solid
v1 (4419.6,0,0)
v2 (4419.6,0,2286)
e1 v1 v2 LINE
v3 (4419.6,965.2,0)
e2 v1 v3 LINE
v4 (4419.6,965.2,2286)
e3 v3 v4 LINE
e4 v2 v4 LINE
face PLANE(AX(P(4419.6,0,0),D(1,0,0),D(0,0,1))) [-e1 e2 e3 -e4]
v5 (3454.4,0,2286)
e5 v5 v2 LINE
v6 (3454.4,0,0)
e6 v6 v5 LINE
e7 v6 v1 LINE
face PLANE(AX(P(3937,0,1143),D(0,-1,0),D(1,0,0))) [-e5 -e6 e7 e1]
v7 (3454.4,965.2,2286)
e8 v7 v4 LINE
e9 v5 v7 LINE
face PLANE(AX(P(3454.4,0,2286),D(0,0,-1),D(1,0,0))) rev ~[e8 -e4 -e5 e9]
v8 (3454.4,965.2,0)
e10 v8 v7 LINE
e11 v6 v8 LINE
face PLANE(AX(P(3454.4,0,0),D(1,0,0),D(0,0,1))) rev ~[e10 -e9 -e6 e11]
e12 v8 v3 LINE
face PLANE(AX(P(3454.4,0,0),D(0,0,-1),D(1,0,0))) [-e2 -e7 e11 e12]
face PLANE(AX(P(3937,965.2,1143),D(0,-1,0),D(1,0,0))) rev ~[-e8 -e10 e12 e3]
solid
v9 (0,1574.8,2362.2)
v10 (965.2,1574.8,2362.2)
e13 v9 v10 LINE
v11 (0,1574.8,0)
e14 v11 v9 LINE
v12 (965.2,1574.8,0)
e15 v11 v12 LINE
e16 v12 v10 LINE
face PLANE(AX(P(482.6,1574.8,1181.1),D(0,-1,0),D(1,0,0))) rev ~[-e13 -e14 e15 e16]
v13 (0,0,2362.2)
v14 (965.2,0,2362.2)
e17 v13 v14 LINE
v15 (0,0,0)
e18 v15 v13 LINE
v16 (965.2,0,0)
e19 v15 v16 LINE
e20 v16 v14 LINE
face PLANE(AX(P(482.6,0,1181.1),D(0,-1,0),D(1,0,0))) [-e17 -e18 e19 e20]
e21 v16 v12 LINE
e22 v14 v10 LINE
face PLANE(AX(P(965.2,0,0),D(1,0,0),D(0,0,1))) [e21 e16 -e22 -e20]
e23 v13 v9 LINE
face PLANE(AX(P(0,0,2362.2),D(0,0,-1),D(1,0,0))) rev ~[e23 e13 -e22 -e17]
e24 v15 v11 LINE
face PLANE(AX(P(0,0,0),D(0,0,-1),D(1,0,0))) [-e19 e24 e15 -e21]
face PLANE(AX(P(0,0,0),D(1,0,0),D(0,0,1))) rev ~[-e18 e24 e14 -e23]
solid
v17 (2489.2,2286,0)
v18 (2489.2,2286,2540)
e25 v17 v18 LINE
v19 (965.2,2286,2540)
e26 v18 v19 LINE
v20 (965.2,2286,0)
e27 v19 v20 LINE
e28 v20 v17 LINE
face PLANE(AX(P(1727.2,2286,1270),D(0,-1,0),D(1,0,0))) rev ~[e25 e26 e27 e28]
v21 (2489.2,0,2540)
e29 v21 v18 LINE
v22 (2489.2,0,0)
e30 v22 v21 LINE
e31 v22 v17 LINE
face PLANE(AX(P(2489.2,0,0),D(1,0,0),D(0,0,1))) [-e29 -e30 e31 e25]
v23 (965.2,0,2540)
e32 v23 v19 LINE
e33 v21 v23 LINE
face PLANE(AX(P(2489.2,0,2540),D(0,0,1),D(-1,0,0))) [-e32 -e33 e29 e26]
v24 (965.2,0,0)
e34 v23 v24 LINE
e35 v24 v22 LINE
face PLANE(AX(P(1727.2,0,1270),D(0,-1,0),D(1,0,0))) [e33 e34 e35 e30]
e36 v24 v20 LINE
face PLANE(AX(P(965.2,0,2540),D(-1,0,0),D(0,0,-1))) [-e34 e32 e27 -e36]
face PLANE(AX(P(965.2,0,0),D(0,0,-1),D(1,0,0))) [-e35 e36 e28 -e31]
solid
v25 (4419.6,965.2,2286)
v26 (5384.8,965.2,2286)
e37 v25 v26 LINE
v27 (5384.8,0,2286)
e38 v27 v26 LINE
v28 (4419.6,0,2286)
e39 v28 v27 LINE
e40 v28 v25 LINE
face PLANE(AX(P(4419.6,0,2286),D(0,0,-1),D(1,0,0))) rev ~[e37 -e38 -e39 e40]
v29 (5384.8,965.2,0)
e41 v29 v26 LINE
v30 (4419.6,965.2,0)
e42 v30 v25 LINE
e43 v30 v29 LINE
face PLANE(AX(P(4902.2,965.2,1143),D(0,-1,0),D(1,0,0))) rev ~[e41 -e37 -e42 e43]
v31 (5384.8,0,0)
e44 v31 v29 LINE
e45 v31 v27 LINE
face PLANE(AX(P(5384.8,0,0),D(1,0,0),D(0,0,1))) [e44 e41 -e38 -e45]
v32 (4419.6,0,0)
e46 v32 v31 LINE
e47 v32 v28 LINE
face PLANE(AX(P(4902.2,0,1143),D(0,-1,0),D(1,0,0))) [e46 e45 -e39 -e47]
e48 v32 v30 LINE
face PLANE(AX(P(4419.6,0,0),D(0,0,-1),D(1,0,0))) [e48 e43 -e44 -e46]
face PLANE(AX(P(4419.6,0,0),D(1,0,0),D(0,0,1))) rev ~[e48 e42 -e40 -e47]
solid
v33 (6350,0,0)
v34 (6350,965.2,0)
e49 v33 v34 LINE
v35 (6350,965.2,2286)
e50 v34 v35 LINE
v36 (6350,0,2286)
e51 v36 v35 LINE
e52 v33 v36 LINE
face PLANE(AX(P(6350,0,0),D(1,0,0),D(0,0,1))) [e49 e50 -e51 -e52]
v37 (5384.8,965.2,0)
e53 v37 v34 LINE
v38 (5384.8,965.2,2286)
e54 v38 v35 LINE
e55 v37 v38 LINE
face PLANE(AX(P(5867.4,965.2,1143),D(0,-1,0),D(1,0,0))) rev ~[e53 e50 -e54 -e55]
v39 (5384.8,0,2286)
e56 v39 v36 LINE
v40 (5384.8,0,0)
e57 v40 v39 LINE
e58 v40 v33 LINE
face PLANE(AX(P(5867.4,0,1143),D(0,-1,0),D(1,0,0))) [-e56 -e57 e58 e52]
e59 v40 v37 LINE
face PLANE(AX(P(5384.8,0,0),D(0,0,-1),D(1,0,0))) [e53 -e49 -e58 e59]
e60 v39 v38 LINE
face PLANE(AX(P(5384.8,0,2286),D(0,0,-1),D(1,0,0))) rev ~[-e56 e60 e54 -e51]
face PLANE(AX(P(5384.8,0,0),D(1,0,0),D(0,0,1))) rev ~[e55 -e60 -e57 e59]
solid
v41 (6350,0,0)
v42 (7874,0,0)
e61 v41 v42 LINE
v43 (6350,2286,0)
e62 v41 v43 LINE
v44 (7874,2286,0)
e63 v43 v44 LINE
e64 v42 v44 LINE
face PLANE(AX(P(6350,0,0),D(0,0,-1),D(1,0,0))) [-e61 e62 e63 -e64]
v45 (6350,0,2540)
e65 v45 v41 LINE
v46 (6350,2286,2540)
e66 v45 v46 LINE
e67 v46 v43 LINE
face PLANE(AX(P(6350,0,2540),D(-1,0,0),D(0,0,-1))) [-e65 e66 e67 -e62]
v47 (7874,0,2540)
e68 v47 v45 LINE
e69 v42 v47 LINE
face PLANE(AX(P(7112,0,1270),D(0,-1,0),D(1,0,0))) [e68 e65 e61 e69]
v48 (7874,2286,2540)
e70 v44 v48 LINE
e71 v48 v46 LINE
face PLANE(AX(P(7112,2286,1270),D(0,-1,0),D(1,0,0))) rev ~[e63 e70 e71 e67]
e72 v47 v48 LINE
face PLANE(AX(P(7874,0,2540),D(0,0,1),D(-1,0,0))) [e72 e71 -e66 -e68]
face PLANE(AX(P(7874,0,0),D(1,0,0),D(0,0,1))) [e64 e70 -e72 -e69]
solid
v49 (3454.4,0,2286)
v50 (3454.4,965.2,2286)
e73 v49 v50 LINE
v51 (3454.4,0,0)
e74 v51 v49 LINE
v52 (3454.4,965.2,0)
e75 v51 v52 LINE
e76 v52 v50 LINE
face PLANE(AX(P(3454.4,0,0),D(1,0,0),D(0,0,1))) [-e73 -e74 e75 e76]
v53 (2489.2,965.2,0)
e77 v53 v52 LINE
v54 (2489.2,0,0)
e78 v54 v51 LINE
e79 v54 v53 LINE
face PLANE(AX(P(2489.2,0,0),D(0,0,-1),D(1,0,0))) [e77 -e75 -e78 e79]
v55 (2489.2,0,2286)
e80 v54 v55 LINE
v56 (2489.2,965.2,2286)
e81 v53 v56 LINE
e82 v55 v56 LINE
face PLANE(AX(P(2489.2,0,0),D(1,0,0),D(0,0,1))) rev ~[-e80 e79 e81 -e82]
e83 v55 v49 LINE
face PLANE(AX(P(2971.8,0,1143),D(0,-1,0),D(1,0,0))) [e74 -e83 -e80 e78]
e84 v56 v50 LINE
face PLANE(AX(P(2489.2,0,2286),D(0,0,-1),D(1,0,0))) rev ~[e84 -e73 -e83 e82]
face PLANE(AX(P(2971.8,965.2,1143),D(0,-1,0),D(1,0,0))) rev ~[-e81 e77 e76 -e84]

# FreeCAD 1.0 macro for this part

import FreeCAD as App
import Part
import Sketcher
Q = App.Units.Quantity


def add_polygon(sketch, points):
    """Adds a closed chain of lines whose ends are joined by coincident constraints."""
    first, n = sketch.GeometryCount, len(points)
    for a, b in zip(points, points[1:] + points[:1]):
        sketch.addGeometry(Part.LineSegment(App.Vector(*a, 0), App.Vector(*b, 0)), False)
    for i in range(n):
        sketch.addConstraint(Sketcher.Constraint("Coincident", first + i, 2, first + (i + 1) % n, 1))

doc = App.newDocument("Part")
params = doc.addObject("Spreadsheet::Sheet", "Params")
for row, (alias, value) in enumerate([
    ("sketch1_width", "38 in"),
    ("sketch1_height", "93 in"),
    ("pad1_length", "62 in"),
    ("sketch2_width", "60 in"),
    ("sketch2_height", "100 in"),
    ("pad2_length", "90 in"),
    ("sketch3_width", "38 in"),
    ("sketch3_height", "90 in"),
    ("pad3_length", "38 in"),
    ("sketch4_width", "38 in"),
    ("sketch4_height", "90 in"),
    ("pad4_length", "38 in"),
    ("sketch5_width", "38 in"),
    ("sketch5_height", "90 in"),
    ("pad5_length", "38 in"),
    ("sketch6_width", "38 in"),
    ("sketch6_height", "90 in"),
    ("pad6_length", "38 in"),
    ("sketch7_width", "60 in"),
    ("sketch7_height", "100 in"),
    ("pad7_length", "90 in"),
], start=1):
    params.set(f"A{row}", alias)
    params.set(f"B{row}", "=" + value)
    params.setAlias(f"B{row}", alias)

body = doc.addObject("PartDesign::Body", "Body")

# Sketch on XZ plane
sketch1 = doc.addObject("Sketcher::SketchObject", "Sketch")
body.addObject(sketch1)
sketch1.AttachmentSupport = (doc.XZ_Plane, [""])
sketch1.MapMode = "FlatFace"
add_polygon(sketch1, [(0, 2362), (0, 0), (965, 0), (965, 2362)])  # lines 0-3
sketch1.addConstraint([
    Sketcher.Constraint("Vertical", 0),
    Sketcher.Constraint("Horizontal", 1),
    Sketcher.Constraint("Vertical", 2),
    Sketcher.Constraint("Horizontal", 3),
    Sketcher.Constraint("Coincident", 0, 2, -1, 1),
    Sketcher.Constraint("DistanceX", 1, 1, 1, 2, Q("38 in")),
    Sketcher.Constraint("DistanceY", 0, 2, 0, 1, Q("93 in")),
])
sketch1.setExpression("Constraints[9]", "Params.sketch1_width")
sketch1.setExpression("Constraints[10]", "Params.sketch1_height")
pad1 = doc.addObject("PartDesign::Pad", "Pad")
body.addObject(pad1)
pad1.Profile = sketch1
pad1.setExpression("Length", "Params.pad1_length")
pad1.Reversed = True
body2 = doc.addObject("PartDesign::Body", "Body001")

# Sketch on XZ plane
sketch2 = doc.addObject("Sketcher::SketchObject", "Sketch001")
body2.addObject(sketch2)
sketch2.AttachmentSupport = (doc.getObject("XZ_Plane001"), [""])
sketch2.MapMode = "FlatFace"
add_polygon(sketch2, [(965, 0), (2489, 0), (2489, 2540), (965, 2540)])  # lines 0-3
sketch2.addConstraint([
    Sketcher.Constraint("Horizontal", 0),
    Sketcher.Constraint("Vertical", 1),
    Sketcher.Constraint("Horizontal", 2),
    Sketcher.Constraint("Vertical", 3),
    Sketcher.Constraint("PointOnObject", 0, 2, -1),
    Sketcher.Constraint("DistanceX", 0, 1, 0, 2, Q("60 in")),
    Sketcher.Constraint("DistanceY", 1, 1, 1, 2, Q("100 in")),
    Sketcher.Constraint("DistanceX", -1, 1, 0, 2, Q("98 in")),
])
sketch2.setExpression("Constraints[9]", "Params.sketch2_width")
sketch2.setExpression("Constraints[10]", "Params.sketch2_height")
pad2 = doc.addObject("PartDesign::Pad", "Pad001")
body2.addObject(pad2)
pad2.Profile = sketch2
pad2.setExpression("Length", "Params.pad2_length")
pad2.Reversed = True
body3 = doc.addObject("PartDesign::Body", "Body002")

# Sketch on XZ plane
sketch3 = doc.addObject("Sketcher::SketchObject", "Sketch002")
body3.addObject(sketch3)
sketch3.AttachmentSupport = (doc.getObject("XZ_Plane002"), [""])
sketch3.MapMode = "FlatFace"
add_polygon(sketch3, [(2489, 2286), (2489, 0), (3454, 0), (3454, 2286)])  # lines 0-3
sketch3.addConstraint([
    Sketcher.Constraint("Vertical", 0),
    Sketcher.Constraint("Horizontal", 1),
    Sketcher.Constraint("Vertical", 2),
    Sketcher.Constraint("Horizontal", 3),
    Sketcher.Constraint("PointOnObject", 0, 2, -1),
    Sketcher.Constraint("DistanceX", 1, 1, 1, 2, Q("38 in")),
    Sketcher.Constraint("DistanceY", 0, 2, 0, 1, Q("90 in")),
    Sketcher.Constraint("DistanceX", -1, 1, 0, 2, Q("98 in")),
])
sketch3.setExpression("Constraints[9]", "Params.sketch3_width")
sketch3.setExpression("Constraints[10]", "Params.sketch3_height")
pad3 = doc.addObject("PartDesign::Pad", "Pad002")
body3.addObject(pad3)
pad3.Profile = sketch3
pad3.setExpression("Length", "Params.pad3_length")
pad3.Reversed = True
body4 = doc.addObject("PartDesign::Body", "Body003")

# Sketch on XZ plane
sketch4 = doc.addObject("Sketcher::SketchObject", "Sketch003")
body4.addObject(sketch4)
sketch4.AttachmentSupport = (doc.getObject("XZ_Plane003"), [""])
sketch4.MapMode = "FlatFace"
add_polygon(sketch4, [(3454, 2286), (3454, 0), (4420, 0), (4420, 2286)])  # lines 0-3
sketch4.addConstraint([
    Sketcher.Constraint("Vertical", 0),
    Sketcher.Constraint("Horizontal", 1),
    Sketcher.Constraint("Vertical", 2),
    Sketcher.Constraint("Horizontal", 3),
    Sketcher.Constraint("PointOnObject", 0, 2, -1),
    Sketcher.Constraint("DistanceX", 1, 1, 1, 2, Q("38 in")),
    Sketcher.Constraint("DistanceY", 0, 2, 0, 1, Q("90 in")),
    Sketcher.Constraint("DistanceX", -1, 1, 0, 2, Q("136 in")),
])
sketch4.setExpression("Constraints[9]", "Params.sketch4_width")
sketch4.setExpression("Constraints[10]", "Params.sketch4_height")
pad4 = doc.addObject("PartDesign::Pad", "Pad003")
body4.addObject(pad4)
pad4.Profile = sketch4
pad4.setExpression("Length", "Params.pad4_length")
pad4.Reversed = True
body5 = doc.addObject("PartDesign::Body", "Body004")

# Sketch on XZ plane
sketch5 = doc.addObject("Sketcher::SketchObject", "Sketch004")
body5.addObject(sketch5)
sketch5.AttachmentSupport = (doc.getObject("XZ_Plane004"), [""])
sketch5.MapMode = "FlatFace"
add_polygon(sketch5, [(4420, 2286), (4420, 0), (5385, 0), (5385, 2286)])  # lines 0-3
sketch5.addConstraint([
    Sketcher.Constraint("Vertical", 0),
    Sketcher.Constraint("Horizontal", 1),
    Sketcher.Constraint("Vertical", 2),
    Sketcher.Constraint("Horizontal", 3),
    Sketcher.Constraint("PointOnObject", 0, 2, -1),
    Sketcher.Constraint("DistanceX", 1, 1, 1, 2, Q("38 in")),
    Sketcher.Constraint("DistanceY", 0, 2, 0, 1, Q("90 in")),
    Sketcher.Constraint("DistanceX", -1, 1, 0, 2, Q("174 in")),
])
sketch5.setExpression("Constraints[9]", "Params.sketch5_width")
sketch5.setExpression("Constraints[10]", "Params.sketch5_height")
pad5 = doc.addObject("PartDesign::Pad", "Pad004")
body5.addObject(pad5)
pad5.Profile = sketch5
pad5.setExpression("Length", "Params.pad5_length")
pad5.Reversed = True
body6 = doc.addObject("PartDesign::Body", "Body005")

# Sketch on XZ plane
sketch6 = doc.addObject("Sketcher::SketchObject", "Sketch005")
body6.addObject(sketch6)
sketch6.AttachmentSupport = (doc.getObject("XZ_Plane005"), [""])
sketch6.MapMode = "FlatFace"
add_polygon(sketch6, [(5385, 2286), (5385, 0), (6350, 0), (6350, 2286)])  # lines 0-3
sketch6.addConstraint([
    Sketcher.Constraint("Vertical", 0),
    Sketcher.Constraint("Horizontal", 1),
    Sketcher.Constraint("Vertical", 2),
    Sketcher.Constraint("Horizontal", 3),
    Sketcher.Constraint("PointOnObject", 0, 2, -1),
    Sketcher.Constraint("DistanceX", 1, 1, 1, 2, Q("38 in")),
    Sketcher.Constraint("DistanceY", 0, 2, 0, 1, Q("90 in")),
    Sketcher.Constraint("DistanceX", -1, 1, 0, 2, Q("212 in")),
])
sketch6.setExpression("Constraints[9]", "Params.sketch6_width")
sketch6.setExpression("Constraints[10]", "Params.sketch6_height")
pad6 = doc.addObject("PartDesign::Pad", "Pad005")
body6.addObject(pad6)
pad6.Profile = sketch6
pad6.setExpression("Length", "Params.pad6_length")
pad6.Reversed = True
body7 = doc.addObject("PartDesign::Body", "Body006")

# Sketch on XZ plane
sketch7 = doc.addObject("Sketcher::SketchObject", "Sketch006")
body7.addObject(sketch7)
sketch7.AttachmentSupport = (doc.getObject("XZ_Plane006"), [""])
sketch7.MapMode = "FlatFace"
add_polygon(sketch7, [(6350, 0), (7874, 0), (7874, 2540), (6350, 2540)])  # lines 0-3
sketch7.addConstraint([
    Sketcher.Constraint("Horizontal", 0),
    Sketcher.Constraint("Vertical", 1),
    Sketcher.Constraint("Horizontal", 2),
    Sketcher.Constraint("Vertical", 3),
    Sketcher.Constraint("PointOnObject", 0, 2, -1),
    Sketcher.Constraint("DistanceX", 0, 1, 0, 2, Q("60 in")),
    Sketcher.Constraint("DistanceY", 1, 1, 1, 2, Q("100 in")),
    Sketcher.Constraint("DistanceX", -1, 1, 0, 2, Q("310 in")),
])
sketch7.setExpression("Constraints[9]", "Params.sketch7_width")
sketch7.setExpression("Constraints[10]", "Params.sketch7_height")
pad7 = doc.addObject("PartDesign::Pad", "Pad006")
body7.addObject(pad7)
pad7.Profile = sketch7
pad7.setExpression("Length", "Params.pad7_length")
pad7.Reversed = True

doc.recompute()
